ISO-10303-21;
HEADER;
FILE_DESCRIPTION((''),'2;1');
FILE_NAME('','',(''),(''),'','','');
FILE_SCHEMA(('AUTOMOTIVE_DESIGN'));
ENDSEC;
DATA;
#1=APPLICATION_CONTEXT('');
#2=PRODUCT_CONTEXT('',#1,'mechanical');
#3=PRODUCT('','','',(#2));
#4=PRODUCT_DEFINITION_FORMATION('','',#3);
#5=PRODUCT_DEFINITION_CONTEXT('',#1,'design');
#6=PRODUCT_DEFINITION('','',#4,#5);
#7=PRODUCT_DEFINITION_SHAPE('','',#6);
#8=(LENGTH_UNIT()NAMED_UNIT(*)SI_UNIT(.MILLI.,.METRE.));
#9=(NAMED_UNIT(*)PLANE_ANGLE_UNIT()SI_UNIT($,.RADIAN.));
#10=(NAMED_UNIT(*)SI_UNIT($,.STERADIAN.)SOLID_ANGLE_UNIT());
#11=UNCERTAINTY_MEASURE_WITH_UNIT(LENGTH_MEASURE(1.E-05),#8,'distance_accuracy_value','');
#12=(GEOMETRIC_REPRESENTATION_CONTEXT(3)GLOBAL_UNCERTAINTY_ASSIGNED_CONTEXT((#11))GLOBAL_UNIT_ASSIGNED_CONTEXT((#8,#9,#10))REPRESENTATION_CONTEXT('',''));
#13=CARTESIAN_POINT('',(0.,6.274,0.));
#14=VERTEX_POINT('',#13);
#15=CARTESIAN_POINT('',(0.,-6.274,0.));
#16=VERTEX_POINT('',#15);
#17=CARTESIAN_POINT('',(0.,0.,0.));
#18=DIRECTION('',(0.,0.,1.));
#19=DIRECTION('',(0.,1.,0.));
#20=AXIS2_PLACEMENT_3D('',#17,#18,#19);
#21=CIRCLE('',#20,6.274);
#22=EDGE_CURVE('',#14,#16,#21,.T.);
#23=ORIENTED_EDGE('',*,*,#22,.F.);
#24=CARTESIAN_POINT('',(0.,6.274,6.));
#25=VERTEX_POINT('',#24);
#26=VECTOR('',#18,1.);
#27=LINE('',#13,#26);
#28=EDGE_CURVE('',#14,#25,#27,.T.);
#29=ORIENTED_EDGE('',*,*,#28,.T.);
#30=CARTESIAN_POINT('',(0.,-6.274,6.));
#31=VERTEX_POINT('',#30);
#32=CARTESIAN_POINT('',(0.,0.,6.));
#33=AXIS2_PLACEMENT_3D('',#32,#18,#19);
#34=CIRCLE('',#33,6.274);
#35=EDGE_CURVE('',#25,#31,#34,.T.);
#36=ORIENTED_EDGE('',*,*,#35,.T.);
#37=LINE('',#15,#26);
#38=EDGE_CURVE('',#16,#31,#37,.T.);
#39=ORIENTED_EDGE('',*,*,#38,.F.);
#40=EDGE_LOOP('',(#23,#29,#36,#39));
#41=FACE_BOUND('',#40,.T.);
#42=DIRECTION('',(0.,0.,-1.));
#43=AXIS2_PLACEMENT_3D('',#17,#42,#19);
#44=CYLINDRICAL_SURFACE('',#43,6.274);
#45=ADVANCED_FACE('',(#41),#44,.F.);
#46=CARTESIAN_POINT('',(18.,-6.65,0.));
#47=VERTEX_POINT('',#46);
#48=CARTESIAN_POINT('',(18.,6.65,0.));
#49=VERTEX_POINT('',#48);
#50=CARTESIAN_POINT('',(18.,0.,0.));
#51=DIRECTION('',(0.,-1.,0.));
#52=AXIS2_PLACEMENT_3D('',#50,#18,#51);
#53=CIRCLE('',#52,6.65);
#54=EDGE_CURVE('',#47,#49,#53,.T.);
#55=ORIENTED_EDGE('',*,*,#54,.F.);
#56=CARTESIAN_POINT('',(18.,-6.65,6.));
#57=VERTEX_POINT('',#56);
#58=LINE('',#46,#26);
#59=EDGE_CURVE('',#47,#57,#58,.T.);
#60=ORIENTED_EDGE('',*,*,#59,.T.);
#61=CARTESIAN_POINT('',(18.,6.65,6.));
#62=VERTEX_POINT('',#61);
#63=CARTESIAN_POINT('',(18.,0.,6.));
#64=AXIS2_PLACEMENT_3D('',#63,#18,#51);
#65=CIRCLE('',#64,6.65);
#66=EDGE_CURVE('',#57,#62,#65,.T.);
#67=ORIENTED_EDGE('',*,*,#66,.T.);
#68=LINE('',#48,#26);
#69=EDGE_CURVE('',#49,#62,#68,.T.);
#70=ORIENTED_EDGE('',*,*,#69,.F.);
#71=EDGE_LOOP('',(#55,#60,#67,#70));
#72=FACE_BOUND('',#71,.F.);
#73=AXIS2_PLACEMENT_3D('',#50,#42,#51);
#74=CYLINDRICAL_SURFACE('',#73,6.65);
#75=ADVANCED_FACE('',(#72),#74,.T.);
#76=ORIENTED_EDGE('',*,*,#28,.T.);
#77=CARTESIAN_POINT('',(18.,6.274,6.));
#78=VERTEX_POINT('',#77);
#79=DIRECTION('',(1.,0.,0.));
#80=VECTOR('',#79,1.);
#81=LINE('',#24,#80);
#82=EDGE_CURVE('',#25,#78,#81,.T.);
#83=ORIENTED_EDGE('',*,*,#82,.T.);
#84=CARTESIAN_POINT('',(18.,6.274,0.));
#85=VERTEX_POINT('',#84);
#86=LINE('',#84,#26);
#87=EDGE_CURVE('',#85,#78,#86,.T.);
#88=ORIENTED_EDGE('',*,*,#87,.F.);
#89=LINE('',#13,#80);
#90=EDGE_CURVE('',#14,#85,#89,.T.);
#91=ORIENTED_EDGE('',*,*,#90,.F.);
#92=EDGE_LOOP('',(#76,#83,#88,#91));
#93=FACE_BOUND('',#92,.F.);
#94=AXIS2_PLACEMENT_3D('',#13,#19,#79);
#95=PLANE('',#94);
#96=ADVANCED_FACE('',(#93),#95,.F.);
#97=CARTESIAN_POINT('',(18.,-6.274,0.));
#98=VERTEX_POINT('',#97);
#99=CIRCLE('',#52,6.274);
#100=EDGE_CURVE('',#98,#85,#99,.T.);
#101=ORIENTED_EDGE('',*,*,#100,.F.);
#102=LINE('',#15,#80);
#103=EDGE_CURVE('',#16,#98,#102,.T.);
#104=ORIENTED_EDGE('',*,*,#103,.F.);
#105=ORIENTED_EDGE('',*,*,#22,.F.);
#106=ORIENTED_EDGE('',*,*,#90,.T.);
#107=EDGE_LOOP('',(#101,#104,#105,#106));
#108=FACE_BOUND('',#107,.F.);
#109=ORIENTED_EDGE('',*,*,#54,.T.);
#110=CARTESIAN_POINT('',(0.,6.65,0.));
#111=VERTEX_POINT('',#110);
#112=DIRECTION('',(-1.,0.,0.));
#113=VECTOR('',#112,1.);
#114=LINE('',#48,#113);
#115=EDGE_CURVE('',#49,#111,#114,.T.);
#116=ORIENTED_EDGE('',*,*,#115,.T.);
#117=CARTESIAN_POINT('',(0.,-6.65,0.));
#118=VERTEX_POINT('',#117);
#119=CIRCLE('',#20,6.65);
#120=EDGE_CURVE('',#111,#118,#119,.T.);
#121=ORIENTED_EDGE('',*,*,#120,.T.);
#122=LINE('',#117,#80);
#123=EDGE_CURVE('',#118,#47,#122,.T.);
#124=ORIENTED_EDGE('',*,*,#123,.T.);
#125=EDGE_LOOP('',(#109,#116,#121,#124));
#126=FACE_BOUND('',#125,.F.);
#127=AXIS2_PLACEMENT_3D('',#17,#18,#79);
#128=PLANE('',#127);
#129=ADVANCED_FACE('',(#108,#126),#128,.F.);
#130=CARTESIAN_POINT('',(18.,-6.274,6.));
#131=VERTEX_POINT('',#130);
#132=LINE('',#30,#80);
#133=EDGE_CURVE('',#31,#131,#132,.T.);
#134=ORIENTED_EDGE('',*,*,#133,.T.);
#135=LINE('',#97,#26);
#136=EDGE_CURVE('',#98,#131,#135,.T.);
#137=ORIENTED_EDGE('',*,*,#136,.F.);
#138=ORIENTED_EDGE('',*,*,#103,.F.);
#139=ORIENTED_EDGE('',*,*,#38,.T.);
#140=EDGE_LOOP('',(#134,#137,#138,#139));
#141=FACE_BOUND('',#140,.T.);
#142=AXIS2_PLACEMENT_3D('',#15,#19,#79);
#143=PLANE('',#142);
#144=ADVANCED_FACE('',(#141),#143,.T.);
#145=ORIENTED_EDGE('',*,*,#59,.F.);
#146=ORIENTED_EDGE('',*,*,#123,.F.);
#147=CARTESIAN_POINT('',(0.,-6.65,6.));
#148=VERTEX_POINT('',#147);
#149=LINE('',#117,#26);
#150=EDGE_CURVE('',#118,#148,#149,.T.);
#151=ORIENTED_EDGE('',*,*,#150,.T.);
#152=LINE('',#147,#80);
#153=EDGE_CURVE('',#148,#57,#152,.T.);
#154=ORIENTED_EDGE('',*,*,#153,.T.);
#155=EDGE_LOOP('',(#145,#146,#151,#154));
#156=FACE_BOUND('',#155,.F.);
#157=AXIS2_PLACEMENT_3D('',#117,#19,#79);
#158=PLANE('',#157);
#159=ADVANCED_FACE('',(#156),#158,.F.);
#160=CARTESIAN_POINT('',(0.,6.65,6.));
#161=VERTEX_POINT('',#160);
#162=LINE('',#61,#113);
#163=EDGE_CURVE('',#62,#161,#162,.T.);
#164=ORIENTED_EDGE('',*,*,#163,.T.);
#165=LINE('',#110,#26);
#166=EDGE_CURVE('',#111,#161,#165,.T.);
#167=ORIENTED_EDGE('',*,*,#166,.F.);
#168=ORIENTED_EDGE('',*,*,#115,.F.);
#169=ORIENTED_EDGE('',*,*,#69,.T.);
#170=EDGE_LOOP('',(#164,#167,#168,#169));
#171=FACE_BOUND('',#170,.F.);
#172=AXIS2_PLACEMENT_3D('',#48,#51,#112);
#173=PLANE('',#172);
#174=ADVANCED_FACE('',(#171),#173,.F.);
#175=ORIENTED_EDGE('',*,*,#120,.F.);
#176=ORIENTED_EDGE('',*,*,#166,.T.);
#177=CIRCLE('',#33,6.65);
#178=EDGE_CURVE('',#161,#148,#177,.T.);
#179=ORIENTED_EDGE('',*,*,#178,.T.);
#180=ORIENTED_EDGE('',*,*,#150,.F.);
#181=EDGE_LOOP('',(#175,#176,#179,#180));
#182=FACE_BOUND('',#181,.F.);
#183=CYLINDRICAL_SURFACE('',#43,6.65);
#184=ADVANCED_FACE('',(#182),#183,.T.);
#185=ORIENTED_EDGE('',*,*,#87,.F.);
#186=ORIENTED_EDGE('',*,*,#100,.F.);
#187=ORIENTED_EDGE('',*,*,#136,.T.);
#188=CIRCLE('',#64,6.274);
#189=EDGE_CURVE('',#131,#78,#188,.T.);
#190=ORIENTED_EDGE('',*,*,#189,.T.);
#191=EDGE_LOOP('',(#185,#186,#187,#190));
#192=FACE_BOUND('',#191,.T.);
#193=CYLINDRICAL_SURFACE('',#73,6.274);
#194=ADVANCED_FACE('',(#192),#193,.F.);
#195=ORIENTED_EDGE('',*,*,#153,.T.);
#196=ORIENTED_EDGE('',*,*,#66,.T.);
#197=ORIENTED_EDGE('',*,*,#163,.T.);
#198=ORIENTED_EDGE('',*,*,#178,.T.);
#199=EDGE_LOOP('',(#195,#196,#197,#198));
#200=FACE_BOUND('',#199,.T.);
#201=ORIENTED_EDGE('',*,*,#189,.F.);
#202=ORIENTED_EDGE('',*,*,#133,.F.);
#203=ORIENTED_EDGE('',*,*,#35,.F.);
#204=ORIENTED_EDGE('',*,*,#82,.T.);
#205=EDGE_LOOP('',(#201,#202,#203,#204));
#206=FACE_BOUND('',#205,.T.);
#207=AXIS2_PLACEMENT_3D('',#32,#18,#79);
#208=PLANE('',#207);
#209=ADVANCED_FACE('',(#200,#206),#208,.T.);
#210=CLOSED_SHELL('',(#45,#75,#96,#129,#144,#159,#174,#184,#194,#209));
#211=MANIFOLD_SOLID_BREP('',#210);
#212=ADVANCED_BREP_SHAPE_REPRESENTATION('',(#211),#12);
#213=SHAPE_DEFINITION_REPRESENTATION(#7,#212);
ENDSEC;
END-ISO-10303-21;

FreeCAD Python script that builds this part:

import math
import FreeCAD as App
import Part
import Sketcher
from FreeCAD import Vector

doc = App.newDocument("Part")
body = doc.addObject("PartDesign::Body", "Body")

# Sketch on XY plane
sketch1 = doc.addObject("Sketcher::SketchObject", "Sketch")
body.addObject(sketch1)
sketch1.AttachmentSupport = (doc.XY_Plane, [""])
sketch1.MapMode = "FlatFace"
sketch1.addGeometry(Part.ArcOfCircle(Part.Circle(Vector(18, 0, 0), Vector(0, 0, 1), 7), math.radians(-90), math.radians(90)), False)
sketch1.addGeometry(Part.LineSegment(Vector(18, 7, 0), Vector(0, 7, 0)), False)
sketch1.addGeometry(Part.ArcOfCircle(Part.Circle(Vector(0, 0, 0), Vector(0, 0, 1), 7), math.radians(90), math.radians(270)), False)
sketch1.addGeometry(Part.LineSegment(Vector(0, -7, 0), Vector(18, -7, 0)), False)
sketch1.addGeometry(Part.ArcOfCircle(Part.Circle(Vector(0, 0, 0), Vector(0, 0, 1), 6), math.radians(90), math.radians(270)), False)
sketch1.addGeometry(Part.LineSegment(Vector(0, 6, 0), Vector(18, 6, 0)), False)
sketch1.addGeometry(Part.ArcOfCircle(Part.Circle(Vector(18, 0, 0), Vector(0, 0, 1), 6), math.radians(-90), math.radians(90)), False)
sketch1.addGeometry(Part.LineSegment(Vector(18, -6, 0), Vector(0, -6, 0)), False)
sketch1.addConstraint(Sketcher.Constraint("Tangent", 0, 2, 1, 1))
sketch1.addConstraint(Sketcher.Constraint("Tangent", 1, 2, 2, 1))
sketch1.addConstraint(Sketcher.Constraint("Tangent", 2, 2, 3, 1))
sketch1.addConstraint(Sketcher.Constraint("Tangent", 3, 2, 0, 1))
sketch1.addConstraint(Sketcher.Constraint("Tangent", 4, 1, 5, 1))
sketch1.addConstraint(Sketcher.Constraint("Tangent", 5, 2, 6, 2))
sketch1.addConstraint(Sketcher.Constraint("Tangent", 6, 1, 7, 1))
sketch1.addConstraint(Sketcher.Constraint("Tangent", 7, 2, 4, 2))
sketch1.addConstraint(Sketcher.Constraint("Horizontal", 1))
sketch1.addConstraint(Sketcher.Constraint("Horizontal", 3))
sketch1.addConstraint(Sketcher.Constraint("Horizontal", 5))
sketch1.addConstraint(Sketcher.Constraint("Horizontal", 7))
sketch1.addConstraint(Sketcher.Constraint("Coincident", 2, 3, -1, 1))
sketch1.addConstraint(Sketcher.Constraint("Coincident", 4, 3, -1, 1))
sketch1.addConstraint(Sketcher.Constraint("Vertical", 6, 3, 0, 2))
sketch1.addConstraint(Sketcher.Constraint("DistanceX", 1, 2, 1, 1, 18.0))
sketch1.addConstraint(Sketcher.Constraint("Radius", 4, 6.274))
sketch1.addConstraint(Sketcher.Constraint("Radius", 0, 6.65))
pad1 = doc.addObject("PartDesign::Pad", "Pad")
body.addObject(pad1)
pad1.Profile = sketch1
pad1.Length = 6

doc.recompute()
